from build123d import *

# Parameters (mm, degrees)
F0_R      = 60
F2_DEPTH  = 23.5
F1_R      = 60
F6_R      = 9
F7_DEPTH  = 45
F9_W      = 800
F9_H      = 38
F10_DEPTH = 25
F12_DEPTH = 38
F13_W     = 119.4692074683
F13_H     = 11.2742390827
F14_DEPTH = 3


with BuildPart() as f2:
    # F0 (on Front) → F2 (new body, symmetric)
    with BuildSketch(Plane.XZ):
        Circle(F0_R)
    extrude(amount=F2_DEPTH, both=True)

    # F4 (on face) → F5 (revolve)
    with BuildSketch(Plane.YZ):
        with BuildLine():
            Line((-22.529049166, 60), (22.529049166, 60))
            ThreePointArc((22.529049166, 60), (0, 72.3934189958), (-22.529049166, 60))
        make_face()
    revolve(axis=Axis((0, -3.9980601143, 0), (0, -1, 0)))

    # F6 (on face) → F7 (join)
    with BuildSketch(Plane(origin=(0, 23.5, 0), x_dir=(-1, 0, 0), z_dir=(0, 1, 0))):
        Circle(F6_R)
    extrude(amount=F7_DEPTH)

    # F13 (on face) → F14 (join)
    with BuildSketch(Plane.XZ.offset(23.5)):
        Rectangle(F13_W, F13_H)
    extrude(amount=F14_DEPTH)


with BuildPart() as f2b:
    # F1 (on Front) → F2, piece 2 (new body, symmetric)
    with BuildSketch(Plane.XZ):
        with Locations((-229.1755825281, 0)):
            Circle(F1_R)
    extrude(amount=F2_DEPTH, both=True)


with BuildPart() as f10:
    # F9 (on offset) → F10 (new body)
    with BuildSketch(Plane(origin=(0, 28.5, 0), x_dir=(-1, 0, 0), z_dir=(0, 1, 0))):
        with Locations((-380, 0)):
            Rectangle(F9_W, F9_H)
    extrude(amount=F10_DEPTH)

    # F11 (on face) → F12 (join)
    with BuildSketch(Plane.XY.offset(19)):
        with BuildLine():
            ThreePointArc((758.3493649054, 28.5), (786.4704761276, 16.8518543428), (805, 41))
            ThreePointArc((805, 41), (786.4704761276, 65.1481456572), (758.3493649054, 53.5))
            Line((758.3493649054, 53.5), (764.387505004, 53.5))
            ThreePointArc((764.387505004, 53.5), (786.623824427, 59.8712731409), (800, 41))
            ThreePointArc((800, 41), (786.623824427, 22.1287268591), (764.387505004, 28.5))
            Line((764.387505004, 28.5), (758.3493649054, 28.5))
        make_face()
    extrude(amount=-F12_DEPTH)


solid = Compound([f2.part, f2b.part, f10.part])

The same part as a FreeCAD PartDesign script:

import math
import FreeCAD as App
import Part
import Sketcher

V = App.Vector
Q = App.Units.Quantity

doc = App.newDocument("Part")
params = doc.addObject("Spreadsheet::Sheet", "Params")
for row, (alias, value) in enumerate([
    ("sketch1_diameter", "120 mm"),
    ("pad1_length", "47 mm"),
    ("revolution_angle", "360 deg"),
    ("sketch3_diameter", "18 mm"),
    ("pad2_length", "45 mm"),
    ("pad3_length", "3 mm"),
    ("sketch5_diameter", "120 mm"),
    ("pad4_length", "47 mm"),
    ("sketch6_width", "800 mm"),
    ("sketch6_height", "38 mm"),
    ("pad5_length", "25 mm"),
    ("sketch7_radius", "25 mm"),
    ("sketch7_radius2", "20 mm"),
    ("pad6_length", "38 mm"),
], start=1):
    params.set(f"A{row}", alias)
    params.set(f"B{row}", "=" + value)
    params.setAlias(f"B{row}", alias)

body = doc.addObject("PartDesign::Body", "Body")

# Sketch on XZ plane
sketch1 = doc.addObject("Sketcher::SketchObject", "Sketch")
body.addObject(sketch1)
sketch1.AttachmentSupport = (doc.XZ_Plane, [""])
sketch1.MapMode = "FlatFace"
sketch1.addGeometry(Part.Circle(V(0, 0, 0), V(0, 0, 1), 60), False)
sketch1.addConstraint([
    Sketcher.Constraint("Coincident", 0, 3, -1, 1),
    Sketcher.Constraint("Diameter", 0, Q("120 mm")),
])
sketch1.setExpression("Constraints[1]", "Params.sketch1_diameter")
pad1 = doc.addObject("PartDesign::Pad", "Pad")
body.addObject(pad1)
pad1.Profile = sketch1
pad1.setExpression("Length", "Params.pad1_length")
pad1.Midplane = True

# Sketch on YZ plane
sketch2 = doc.addObject("Sketcher::SketchObject", "Sketch001")
body.addObject(sketch2)
sketch2.AttachmentSupport = (doc.YZ_Plane, [""])
sketch2.MapMode = "FlatFace"
sketch2.addGeometry([
    Part.LineSegment(V(-22.529049, 60, 0), V(22.529049, 60, 0)),
    Part.ArcOfCircle(Part.Circle(V(0, 45.719791, 0), V(0, 0, 1), 26.673628), math.radians(32.368877), math.radians(147.631123)),
], False)
sketch2.addConstraint([
    Sketcher.Constraint("Coincident", 0, 1, 1, 2),
    Sketcher.Constraint("Coincident", 1, 1, 0, 2),
    Sketcher.Constraint("Horizontal", 0),
    Sketcher.Constraint("PointOnObject", 1, 3, -2),
    Sketcher.Constraint("DistanceY", -1, 1, 0, 1, Q("60 mm")),
    Sketcher.Constraint("DistanceX", 0, 1, 0, 2, Q("45.058098 mm")),
    Sketcher.Constraint("Radius", 1, Q("26.673628 mm")),
])
revolution = doc.addObject("PartDesign::Revolution", "Revolution")
body.addObject(revolution)
revolution.Profile = sketch2
revolution.ReferenceAxis = (sketch2, ["H_Axis"])
revolution.setExpression("Angle", "Params.revolution_angle")

# Sketch on XZ plane
sketch3 = doc.addObject("Sketcher::SketchObject", "Sketch002")
body.addObject(sketch3)
sketch3.AttachmentSupport = (doc.XZ_Plane, [""])
sketch3.MapMode = "FlatFace"
sketch3.AttachmentOffset = App.Placement(V(0, 0, -23.5), App.Rotation())
sketch3.addGeometry(Part.Circle(V(0, 0, 0), V(0, 0, 1), 9), False)
sketch3.addConstraint([
    Sketcher.Constraint("Coincident", 0, 3, -1, 1),
    Sketcher.Constraint("Diameter", 0, Q("18 mm")),
])
sketch3.setExpression("Constraints[1]", "Params.sketch3_diameter")
pad2 = doc.addObject("PartDesign::Pad", "Pad001")
body.addObject(pad2)
pad2.Profile = sketch3
pad2.setExpression("Length", "Params.pad2_length")
pad2.Reversed = True

# Sketch on XZ plane
sketch4 = doc.addObject("Sketcher::SketchObject", "Sketch003")
body.addObject(sketch4)
sketch4.AttachmentSupport = (doc.XZ_Plane, [""])
sketch4.MapMode = "FlatFace"
sketch4.AttachmentOffset = App.Placement(V(0, 0, 23.5), App.Rotation())
sketch4.addGeometry([
    Part.LineSegment(V(-59.734604, 5.63712, 0), V(-59.734604, -5.63712, 0)),
    Part.LineSegment(V(-59.734604, -5.63712, 0), V(59.734604, -5.63712, 0)),
    Part.LineSegment(V(59.734604, -5.63712, 0), V(59.734604, 5.63712, 0)),
    Part.LineSegment(V(59.734604, 5.63712, 0), V(-59.734604, 5.63712, 0)),
], False)
sketch4.addConstraint([
    Sketcher.Constraint("Coincident", 0, 2, 1, 1),
    Sketcher.Constraint("Coincident", 1, 2, 2, 1),
    Sketcher.Constraint("Coincident", 2, 2, 3, 1),
    Sketcher.Constraint("Coincident", 3, 2, 0, 1),
    Sketcher.Constraint("Vertical", 0),
    Sketcher.Constraint("Horizontal", 1),
    Sketcher.Constraint("Vertical", 2),
    Sketcher.Constraint("Horizontal", 3),
    Sketcher.Constraint("Symmetric", 0, 2, 2, 2, -1, 1),
    Sketcher.Constraint("DistanceY", 0, 2, 0, 1, Q("11.274239 mm")),
    Sketcher.Constraint("DistanceX", 1, 1, 1, 2, Q("119.469207 mm")),
])
pad3 = doc.addObject("PartDesign::Pad", "Pad002")
body.addObject(pad3)
pad3.Profile = sketch4
pad3.setExpression("Length", "Params.pad3_length")
body2 = doc.addObject("PartDesign::Body", "Body001")

# Sketch on XZ plane
sketch5 = doc.addObject("Sketcher::SketchObject", "Sketch004")
body2.addObject(sketch5)
sketch5.AttachmentSupport = (doc.getObject("XZ_Plane001"), [""])
sketch5.MapMode = "FlatFace"
sketch5.addGeometry(Part.Circle(V(-229.175583, 0, 0), V(0, 0, 1), 60), False)
sketch5.addConstraint([
    Sketcher.Constraint("PointOnObject", 0, 3, -1),
    Sketcher.Constraint("Diameter", 0, Q("120 mm")),
    Sketcher.Constraint("DistanceX", 0, 3, -1, 1, Q("229.175583 mm")),
])
sketch5.setExpression("Constraints[1]", "Params.sketch5_diameter")
pad4 = doc.addObject("PartDesign::Pad", "Pad003")
body2.addObject(pad4)
pad4.Profile = sketch5
pad4.setExpression("Length", "Params.pad4_length")
pad4.Midplane = True
body3 = doc.addObject("PartDesign::Body", "Body002")

# Sketch on XZ plane
sketch6 = doc.addObject("Sketcher::SketchObject", "Sketch005")
body3.addObject(sketch6)
sketch6.AttachmentSupport = (doc.getObject("XZ_Plane002"), [""])
sketch6.MapMode = "FlatFace"
sketch6.AttachmentOffset = App.Placement(V(0, 0, -28.5), App.Rotation())
sketch6.addGeometry([
    Part.LineSegment(V(780, 19, 0), V(780, -19, 0)),
    Part.LineSegment(V(780, -19, 0), V(-20, -19, 0)),
    Part.LineSegment(V(-20, -19, 0), V(-20, 19, 0)),
    Part.LineSegment(V(-20, 19, 0), V(780, 19, 0)),
], False)
sketch6.addConstraint([
    Sketcher.Constraint("Coincident", 0, 2, 1, 1),
    Sketcher.Constraint("Coincident", 1, 2, 2, 1),
    Sketcher.Constraint("Coincident", 2, 2, 3, 1),
    Sketcher.Constraint("Coincident", 3, 2, 0, 1),
    Sketcher.Constraint("Vertical", 0),
    Sketcher.Constraint("Horizontal", 1),
    Sketcher.Constraint("Vertical", 2),
    Sketcher.Constraint("Horizontal", 3),
    Sketcher.Constraint("DistanceX", 1, 2, 1, 1, Q("800 mm")),
    Sketcher.Constraint("DistanceY", 0, 2, 0, 1, Q("38 mm")),
    Sketcher.Constraint("DistanceX", -1, 1, 0, 2, Q("780 mm")),
    Sketcher.Constraint("DistanceY", 0, 2, -1, 1, Q("19 mm")),
])
sketch6.setExpression("Constraints[8]", "Params.sketch6_width")
sketch6.setExpression("Constraints[9]", "Params.sketch6_height")
pad5 = doc.addObject("PartDesign::Pad", "Pad004")
body3.addObject(pad5)
pad5.Profile = sketch6
pad5.setExpression("Length", "Params.pad5_length")
pad5.Reversed = True

# Sketch on XY plane
sketch7 = doc.addObject("Sketcher::SketchObject", "Sketch006")
body3.addObject(sketch7)
sketch7.AttachmentSupport = (doc.getObject("XY_Plane002"), [""])
sketch7.MapMode = "FlatFace"
sketch7.AttachmentOffset = App.Placement(V(0, 0, 19), App.Rotation())
sketch7.addGeometry([
    Part.ArcOfCircle(Part.Circle(V(780, 41, 0), V(0, 0, 1), 25), math.radians(-150), math.radians(0)),  # 0
    Part.ArcOfCircle(Part.Circle(V(780, 41, 0), V(0, 0, 1), 25), math.radians(0), math.radians(150)),  # 1
    Part.LineSegment(V(758.349365, 53.5, 0), V(764.387505, 53.5, 0)),  # 2
    Part.ArcOfCircle(Part.Circle(V(780, 41, 0), V(0, 0, 1), 20), math.radians(0), math.radians(141.317813)),  # 3
    Part.ArcOfCircle(Part.Circle(V(780, 41, 0), V(0, 0, 1), 20), math.radians(-141.317813), math.radians(0)),  # 4
    Part.LineSegment(V(764.387505, 28.5, 0), V(758.349365, 28.5, 0)),  # 5
], False)
sketch7.addConstraint([
    Sketcher.Constraint("Tangent", 0, 2, 1, 1),
    Sketcher.Constraint("Coincident", 1, 2, 2, 1),
    Sketcher.Constraint("Coincident", 2, 2, 3, 2),
    Sketcher.Constraint("Tangent", 3, 1, 4, 2),
    Sketcher.Constraint("Coincident", 4, 1, 5, 1),
    Sketcher.Constraint("Coincident", 5, 2, 0, 1),
    Sketcher.Constraint("Horizontal", 2),
    Sketcher.Constraint("Horizontal", 5),
    Sketcher.Constraint("Coincident", 3, 3, 0, 3),
    Sketcher.Constraint("Equal", 0, 1),
    Sketcher.Constraint("Equal", 3, 4),
    Sketcher.Constraint("Horizontal", 4, 3, 0, 2),
    Sketcher.Constraint("Horizontal", 0, 2, 3, 1),
    Sketcher.Constraint("Vertical", 2, 2, 4, 1),
    Sketcher.Constraint("Radius", 0, Q("25 mm")),
    Sketcher.Constraint("Radius", 3, Q("20 mm")),
    Sketcher.Constraint("DistanceX", -1, 1, 0, 3, Q("780 mm")),
    Sketcher.Constraint("DistanceY", -1, 1, 0, 3, Q("41 mm")),
    Sketcher.Constraint("DistanceY", 4, 1, 2, 2, Q("25 mm")),
])
sketch7.setExpression("Constraints[14]", "Params.sketch7_radius")
sketch7.setExpression("Constraints[15]", "Params.sketch7_radius2")
pad6 = doc.addObject("PartDesign::Pad", "Pad005")
body3.addObject(pad6)
pad6.Profile = sketch7
pad6.setExpression("Length", "Params.pad6_length")
pad6.Reversed = True

doc.recompute()
